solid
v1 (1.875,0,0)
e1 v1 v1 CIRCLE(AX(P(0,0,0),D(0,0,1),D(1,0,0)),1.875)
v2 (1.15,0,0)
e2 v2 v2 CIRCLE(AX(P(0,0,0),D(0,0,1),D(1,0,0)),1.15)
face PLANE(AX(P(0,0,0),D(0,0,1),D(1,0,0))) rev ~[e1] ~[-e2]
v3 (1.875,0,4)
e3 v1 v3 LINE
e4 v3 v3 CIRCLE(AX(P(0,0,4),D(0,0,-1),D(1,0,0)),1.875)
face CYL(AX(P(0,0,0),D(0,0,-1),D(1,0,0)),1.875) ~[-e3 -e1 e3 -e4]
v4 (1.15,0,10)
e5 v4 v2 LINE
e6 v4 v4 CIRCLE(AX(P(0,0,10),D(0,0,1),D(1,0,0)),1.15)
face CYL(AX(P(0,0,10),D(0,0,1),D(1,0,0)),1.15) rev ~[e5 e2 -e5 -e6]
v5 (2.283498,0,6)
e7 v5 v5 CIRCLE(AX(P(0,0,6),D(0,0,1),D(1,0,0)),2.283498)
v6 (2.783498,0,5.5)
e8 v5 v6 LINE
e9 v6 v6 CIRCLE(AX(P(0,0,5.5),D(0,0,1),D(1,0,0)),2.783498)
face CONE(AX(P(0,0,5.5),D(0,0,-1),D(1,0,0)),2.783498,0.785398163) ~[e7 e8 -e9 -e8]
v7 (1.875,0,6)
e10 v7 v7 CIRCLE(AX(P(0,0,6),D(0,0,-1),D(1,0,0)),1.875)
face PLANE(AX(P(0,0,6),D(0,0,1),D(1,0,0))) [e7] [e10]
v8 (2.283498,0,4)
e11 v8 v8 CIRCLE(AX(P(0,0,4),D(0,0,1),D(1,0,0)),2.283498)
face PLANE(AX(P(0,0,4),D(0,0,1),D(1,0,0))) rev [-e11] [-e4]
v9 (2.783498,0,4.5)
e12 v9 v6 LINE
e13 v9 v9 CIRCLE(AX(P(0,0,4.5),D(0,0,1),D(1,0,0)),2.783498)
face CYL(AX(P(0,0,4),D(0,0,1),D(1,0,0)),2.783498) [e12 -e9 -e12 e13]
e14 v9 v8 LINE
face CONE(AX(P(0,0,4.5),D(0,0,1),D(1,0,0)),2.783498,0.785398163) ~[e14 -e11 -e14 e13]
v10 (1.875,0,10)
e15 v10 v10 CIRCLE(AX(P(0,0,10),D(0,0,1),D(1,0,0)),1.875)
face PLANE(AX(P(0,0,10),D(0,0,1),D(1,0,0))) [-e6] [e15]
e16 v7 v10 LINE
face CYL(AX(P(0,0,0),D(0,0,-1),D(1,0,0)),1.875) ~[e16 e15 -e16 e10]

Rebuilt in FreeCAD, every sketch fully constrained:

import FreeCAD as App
import Part
import Sketcher
from FreeCAD import Vector
Q = App.Units.Quantity


def edges_at(feature, points):
    """Names of the edges that pass closest to the given points."""
    edges = feature.Shape.Edges
    near = lambda p: min(range(len(edges)), key=lambda i: edges[i].distToShape(Part.Vertex(*p))[0])
    return sorted({f"Edge{near(p) + 1}" for p in points})

doc = App.newDocument("Part")
body = doc.addObject("PartDesign::Body", "Body")

sketch1 = doc.addObject("Sketcher::SketchObject", "Sketch")
body.addObject(sketch1)
sketch1.AttachmentSupport = (doc.XY_Plane, [""])
sketch1.MapMode = "FlatFace"
sketch1.addGeometry(Part.Circle(Vector(0, 0, 0), Vector(0, 0, 1), 1.9), False)
sketch1.addConstraint([
    Sketcher.Constraint("Coincident", 0, 3, -1, 1),
    Sketcher.Constraint("Diameter", 0, Q("3.75 mm")),
])
pad1 = doc.addObject("PartDesign::Pad", "Pad")
body.addObject(pad1)
pad1.Profile = sketch1
pad1.Length = 10

sketch2 = doc.addObject("Sketcher::SketchObject", "Sketch001")
body.addObject(sketch2)
sketch2.AttachmentSupport = (doc.XY_Plane, [""])
sketch2.MapMode = "FlatFace"
sketch2.AttachmentOffset = App.Placement(Vector(0, 0, 10), App.Rotation())
sketch2.addGeometry(Part.Circle(Vector(0, 0, 0), Vector(0, 0, 1), 1.1), False)
sketch2.addConstraint([
    Sketcher.Constraint("Coincident", 0, 3, -1, 1),
    Sketcher.Constraint("Diameter", 0, Q("2.3 mm")),
])
pocket1 = doc.addObject("PartDesign::Pocket", "Pocket")
body.addObject(pocket1)
pocket1.Profile = sketch2
pocket1.Length = 25

sketch3 = doc.addObject("Sketcher::SketchObject", "Sketch002")
body.addObject(sketch3)
sketch3.AttachmentSupport = (doc.XZ_Plane, [""])
sketch3.MapMode = "FlatFace"
sketch3.addGeometry([
    Part.LineSegment(Vector(1.7, 6, 0), Vector(1.8, 4, 0)),
    Part.LineSegment(Vector(1.8, 4, 0), Vector(2.8, 4, 0)),
    Part.LineSegment(Vector(2.8, 4, 0), Vector(2.8, 6, 0)),
    Part.LineSegment(Vector(2.8, 6, 0), Vector(1.7, 6, 0)),
], False)
sketch3.addConstraint([
    Sketcher.Constraint("Coincident", 0, 2, 1, 1),
    Sketcher.Constraint("Coincident", 1, 2, 2, 1),
    Sketcher.Constraint("Coincident", 2, 2, 3, 1),
    Sketcher.Constraint("Coincident", 3, 2, 0, 1),
    Sketcher.Constraint("Horizontal", 1),
    Sketcher.Constraint("Vertical", 2),
    Sketcher.Constraint("Horizontal", 3),
    Sketcher.Constraint("DistanceX", 1, 1, 1, 2, Q("1 mm")),
    Sketcher.Constraint("DistanceY", 2, 1, 2, 2, Q("2 mm")),
    Sketcher.Constraint("DistanceY", -1, 1, 0, 2, Q("4 mm")),
    Sketcher.Constraint("DistanceX", 3, 2, 3, 1, Q("1.044845 mm")),
    Sketcher.Constraint("DistanceX", -1, 1, 0, 2, Q("1.783498 mm")),
])
revolution = doc.addObject("PartDesign::Revolution", "Revolution")
body.addObject(revolution)
revolution.Profile = sketch3
revolution.ReferenceAxis = (sketch3, ["V_Axis"])
revolution.Angle = 360
doc.recompute()

chamfer = doc.addObject("PartDesign::Chamfer", "Chamfer")
body.addObject(chamfer)
chamfer.Base = (revolution, edges_at(revolution, [(-2.783, 0, 4), (-2.783, 0, 6)]))
chamfer.Size = 0.5

doc.recompute()
